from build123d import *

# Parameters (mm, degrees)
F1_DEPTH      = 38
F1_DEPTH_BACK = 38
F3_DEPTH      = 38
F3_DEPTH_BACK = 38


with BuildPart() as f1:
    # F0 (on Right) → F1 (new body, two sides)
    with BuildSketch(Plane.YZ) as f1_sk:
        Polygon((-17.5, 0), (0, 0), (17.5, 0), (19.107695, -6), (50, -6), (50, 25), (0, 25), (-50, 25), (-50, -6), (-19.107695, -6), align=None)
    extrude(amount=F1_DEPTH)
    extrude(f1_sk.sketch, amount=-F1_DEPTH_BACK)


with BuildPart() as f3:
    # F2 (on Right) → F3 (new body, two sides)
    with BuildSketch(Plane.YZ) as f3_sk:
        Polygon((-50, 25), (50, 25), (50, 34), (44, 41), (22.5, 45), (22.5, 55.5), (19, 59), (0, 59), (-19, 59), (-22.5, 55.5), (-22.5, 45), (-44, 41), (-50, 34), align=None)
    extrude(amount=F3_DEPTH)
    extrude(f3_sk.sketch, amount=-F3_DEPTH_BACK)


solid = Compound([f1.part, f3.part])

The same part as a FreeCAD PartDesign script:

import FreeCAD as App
import Part
import Sketcher

V = App.Vector
Q = App.Units.Quantity

doc = App.newDocument("Part")
body = doc.addObject("PartDesign::Body", "Body")

# Sketch on YZ plane
sketch1 = body.newObject("Sketcher::SketchObject", "Sketch")
sketch1.AttachmentSupport = (doc.getObject("YZ_Plane"), [""])
sketch1.MapMode = "FlatFace"
sketch1.addGeometry([
    Part.LineSegment(V(-18, 0, 0), V(18, 0, 0)),  # 0
    Part.LineSegment(V(18, 0, 0), V(19, -6, 0)),  # 1
    Part.LineSegment(V(19, -6, 0), V(50, -6, 0)),  # 2
    Part.LineSegment(V(50, -6, 0), V(50, 25, 0)),  # 3
    Part.LineSegment(V(50, 25, 0), V(-50, 25, 0)),  # 4
    Part.LineSegment(V(-50, 25, 0), V(-50, -6, 0)),  # 5
    Part.LineSegment(V(-50, -6, 0), V(-19, -6, 0)),  # 6
    Part.LineSegment(V(-19, -6, 0), V(-18, 0, 0)),  # 7
], False)
sketch1.addConstraint([
    Sketcher.Constraint("Coincident", 0, 2, 1, 1),
    Sketcher.Constraint("Coincident", 1, 2, 2, 1),
    Sketcher.Constraint("Coincident", 2, 2, 3, 1),
    Sketcher.Constraint("Coincident", 3, 2, 4, 1),
    Sketcher.Constraint("Coincident", 4, 2, 5, 1),
    Sketcher.Constraint("Coincident", 5, 2, 6, 1),
    Sketcher.Constraint("Coincident", 6, 2, 7, 1),
    Sketcher.Constraint("Coincident", 7, 2, 0, 1),
    Sketcher.Constraint("Horizontal", 0),
    Sketcher.Constraint("Horizontal", 2),
    Sketcher.Constraint("Vertical", 3),
    Sketcher.Constraint("Horizontal", 4),
    Sketcher.Constraint("Vertical", 5),
    Sketcher.Constraint("Horizontal", 6),
    Sketcher.Constraint("Symmetric", 0, 2, 7, 2, -1, 1),
    Sketcher.Constraint("Symmetric", 2, 2, 5, 2, -2),
    Sketcher.Constraint("Equal", 2, 6),
    Sketcher.Constraint("DistanceX", 0, 1, 0, 2, Q("35 mm")),
    Sketcher.Constraint("DistanceX", 4, 2, 4, 1, Q("100 mm")),
    Sketcher.Constraint("DistanceY", 3, 1, 3, 2, Q("31 mm")),
    Sketcher.Constraint("Angle", 1, Q("-75.000001 deg")),
    Sketcher.Constraint("DistanceY", 1, 2, -1, 1, Q("6 mm")),
])
pad1 = body.newObject("PartDesign::Pad", "Pad")
pad1.Profile = sketch1
pad1.Type = "TwoLengths"
pad1.Length = 38
pad1.Length2 = 38
body2 = doc.addObject("PartDesign::Body", "Body001")

# Sketch on YZ plane
sketch2 = body2.newObject("Sketcher::SketchObject", "Sketch001")
sketch2.AttachmentSupport = (doc.getObject("YZ_Plane001"), [""])
sketch2.MapMode = "FlatFace"
sketch2.addGeometry([
    Part.LineSegment(V(-50, 25, 0), V(50, 25, 0)),  # 0
    Part.LineSegment(V(50, 25, 0), V(50, 34, 0)),  # 1
    Part.LineSegment(V(50, 34, 0), V(44, 41, 0)),  # 2
    Part.LineSegment(V(44, 41, 0), V(22.5, 45, 0)),  # 3
    Part.LineSegment(V(22.5, 45, 0), V(22.5, 55.5, 0)),  # 4
    Part.LineSegment(V(22.5, 55.5, 0), V(19, 59, 0)),  # 5
    Part.LineSegment(V(19, 59, 0), V(-19, 59, 0)),  # 6
    Part.LineSegment(V(-19, 59, 0), V(-22.5, 55.5, 0)),  # 7
    Part.LineSegment(V(-22.5, 55.5, 0), V(-22.5, 45, 0)),  # 8
    Part.LineSegment(V(-22.5, 45, 0), V(-44, 41, 0)),  # 9
    Part.LineSegment(V(-44, 41, 0), V(-50, 34, 0)),  # 10
    Part.LineSegment(V(-50, 34, 0), V(-50, 25, 0)),  # 11
], False)
sketch2.addConstraint([
    Sketcher.Constraint("Coincident", 0, 2, 1, 1),
    Sketcher.Constraint("Coincident", 1, 2, 2, 1),
    Sketcher.Constraint("Coincident", 2, 2, 3, 1),
    Sketcher.Constraint("Coincident", 3, 2, 4, 1),
    Sketcher.Constraint("Coincident", 4, 2, 5, 1),
    Sketcher.Constraint("Coincident", 5, 2, 6, 1),
    Sketcher.Constraint("Coincident", 6, 2, 7, 1),
    Sketcher.Constraint("Coincident", 7, 2, 8, 1),
    Sketcher.Constraint("Coincident", 8, 2, 9, 1),
    Sketcher.Constraint("Coincident", 9, 2, 10, 1),
    Sketcher.Constraint("Coincident", 10, 2, 11, 1),
    Sketcher.Constraint("Coincident", 11, 2, 0, 1),
    Sketcher.Constraint("Horizontal", 0),
    Sketcher.Constraint("Vertical", 1),
    Sketcher.Constraint("Vertical", 4),
    Sketcher.Constraint("Horizontal", 6),
    Sketcher.Constraint("Vertical", 8),
    Sketcher.Constraint("Vertical", 11),
    Sketcher.Constraint("Symmetric", 4, 2, 7, 2, -2),
    Sketcher.Constraint("Symmetric", 2, 2, 9, 2, -2),
    Sketcher.Constraint("Symmetric", 1, 2, 10, 2, -2),
    Sketcher.Constraint("Perpendicular", 5, 7),
    Sketcher.Constraint("Horizontal", 3, 2, 8, 2),
    Sketcher.Constraint("Equal", 5, 7),
    Sketcher.Constraint("DistanceX", 0, 1, 0, 2, Q("100 mm")),
    Sketcher.Constraint("DistanceX", 6, 2, 6, 1, Q("38 mm")),
    Sketcher.Constraint("DistanceY", 1, 1, 1, 2, Q("9 mm")),
    Sketcher.Constraint("DistanceY", 4, 1, 4, 2, Q("10.5 mm")),
    Sketcher.Constraint("DistanceY", -1, 1, 0, 2, Q("25 mm")),
    Sketcher.Constraint("DistanceX", -1, 1, 2, 2, Q("44 mm")),
    Sketcher.Constraint("DistanceY", -1, 1, 2, 2, Q("41 mm")),
    Sketcher.Constraint("DistanceY", -1, 1, 3, 2, Q("45 mm")),
    Sketcher.Constraint("DistanceY", -1, 1, 5, 2, Q("59 mm")),
])
pad2 = body2.newObject("PartDesign::Pad", "Pad001")
pad2.Profile = sketch2
pad2.Type = "TwoLengths"
pad2.Length = 38
pad2.Length2 = 38

doc.recompute()
